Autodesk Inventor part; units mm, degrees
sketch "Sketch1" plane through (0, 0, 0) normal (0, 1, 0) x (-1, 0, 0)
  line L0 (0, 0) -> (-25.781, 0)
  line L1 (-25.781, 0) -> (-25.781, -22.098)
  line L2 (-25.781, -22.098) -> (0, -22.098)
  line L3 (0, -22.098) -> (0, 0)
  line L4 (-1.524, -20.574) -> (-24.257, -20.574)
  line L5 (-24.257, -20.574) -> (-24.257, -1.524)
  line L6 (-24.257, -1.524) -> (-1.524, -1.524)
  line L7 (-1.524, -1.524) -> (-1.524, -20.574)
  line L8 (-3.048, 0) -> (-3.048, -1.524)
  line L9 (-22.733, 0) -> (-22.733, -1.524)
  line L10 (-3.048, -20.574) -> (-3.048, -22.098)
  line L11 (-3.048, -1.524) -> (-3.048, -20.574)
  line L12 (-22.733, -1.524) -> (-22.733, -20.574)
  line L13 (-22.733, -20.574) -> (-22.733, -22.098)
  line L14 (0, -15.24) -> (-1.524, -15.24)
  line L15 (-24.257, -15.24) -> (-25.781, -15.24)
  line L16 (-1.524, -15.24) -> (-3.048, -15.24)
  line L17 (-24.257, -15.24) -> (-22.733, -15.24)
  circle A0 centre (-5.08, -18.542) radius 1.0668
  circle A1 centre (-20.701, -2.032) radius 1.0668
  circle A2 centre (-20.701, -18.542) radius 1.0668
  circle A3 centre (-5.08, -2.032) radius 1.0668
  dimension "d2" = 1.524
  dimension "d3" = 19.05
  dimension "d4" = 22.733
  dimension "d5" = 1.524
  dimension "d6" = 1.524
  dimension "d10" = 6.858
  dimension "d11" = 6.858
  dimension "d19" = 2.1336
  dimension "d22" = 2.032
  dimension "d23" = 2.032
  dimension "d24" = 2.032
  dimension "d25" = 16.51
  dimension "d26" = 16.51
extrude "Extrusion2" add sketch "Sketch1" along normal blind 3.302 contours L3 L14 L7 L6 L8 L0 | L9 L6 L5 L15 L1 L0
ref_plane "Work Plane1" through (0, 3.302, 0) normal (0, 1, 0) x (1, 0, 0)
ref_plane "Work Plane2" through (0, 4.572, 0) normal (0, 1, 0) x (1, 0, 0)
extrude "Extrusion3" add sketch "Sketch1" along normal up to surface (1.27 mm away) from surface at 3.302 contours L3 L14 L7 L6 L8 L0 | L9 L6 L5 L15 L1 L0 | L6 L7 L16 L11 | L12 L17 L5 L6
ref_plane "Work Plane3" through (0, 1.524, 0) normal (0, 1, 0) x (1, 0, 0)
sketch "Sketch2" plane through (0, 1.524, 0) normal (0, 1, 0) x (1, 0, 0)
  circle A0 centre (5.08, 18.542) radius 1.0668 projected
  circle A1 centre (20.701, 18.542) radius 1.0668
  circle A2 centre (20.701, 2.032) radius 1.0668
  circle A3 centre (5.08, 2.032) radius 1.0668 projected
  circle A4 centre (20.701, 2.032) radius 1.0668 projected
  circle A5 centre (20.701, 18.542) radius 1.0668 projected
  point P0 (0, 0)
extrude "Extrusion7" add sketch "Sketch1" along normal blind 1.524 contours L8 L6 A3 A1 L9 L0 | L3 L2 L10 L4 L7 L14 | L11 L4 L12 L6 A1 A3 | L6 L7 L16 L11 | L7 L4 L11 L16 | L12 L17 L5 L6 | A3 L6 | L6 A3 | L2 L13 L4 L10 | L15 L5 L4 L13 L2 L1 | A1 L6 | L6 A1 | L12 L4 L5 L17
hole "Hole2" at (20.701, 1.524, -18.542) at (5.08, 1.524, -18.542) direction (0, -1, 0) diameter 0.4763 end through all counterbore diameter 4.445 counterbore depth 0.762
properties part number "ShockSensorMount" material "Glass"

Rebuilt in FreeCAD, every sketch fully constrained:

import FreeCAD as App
import Part
import Sketcher
Q = App.Units.Quantity

doc = App.newDocument("Part")
body = doc.addObject("PartDesign::Body", "Body")
body.AllowCompound = True

# Sketch on XZ plane
sketch1 = body.newObject("Sketcher::SketchObject", "Sketch")
sketch1.AttachmentSupport = (doc.getObject("XZ_Plane"), [""])
sketch1.MapMode = "FlatFace"
sketch1.addGeometry([
    Part.LineSegment(App.Vector(0, -15.2, 0), App.Vector(0, 0, 0)),  # 0
    Part.LineSegment(App.Vector(0, 0, 0), App.Vector(3, 0, 0)),  # 1
    Part.LineSegment(App.Vector(3, 0, 0), App.Vector(3, -1.5, 0)),  # 2
    Part.LineSegment(App.Vector(3, -1.5, 0), App.Vector(1.5, -1.5, 0)),  # 3
    Part.LineSegment(App.Vector(1.5, -1.5, 0), App.Vector(1.5, -15.2, 0)),  # 4
    Part.LineSegment(App.Vector(1.5, -15.2, 0), App.Vector(0, -15.2, 0)),  # 5
    Part.LineSegment(App.Vector(22.7, -1.5, 0), App.Vector(22.7, 0, 0)),  # 6
    Part.LineSegment(App.Vector(22.7, 0, 0), App.Vector(25.8, 0, 0)),  # 7
    Part.LineSegment(App.Vector(25.8, 0, 0), App.Vector(25.8, -15.2, 0)),  # 8
    Part.LineSegment(App.Vector(25.8, -15.2, 0), App.Vector(24.3, -15.2, 0)),  # 9
    Part.LineSegment(App.Vector(24.3, -15.2, 0), App.Vector(24.3, -1.5, 0)),  # 10
    Part.LineSegment(App.Vector(24.3, -1.5, 0), App.Vector(22.7, -1.5, 0)),  # 11
], False)
sketch1.addConstraint([
    Sketcher.Constraint("Coincident", 0, 2, 1, 1),
    Sketcher.Constraint("Coincident", 1, 2, 2, 1),
    Sketcher.Constraint("Coincident", 2, 2, 3, 1),
    Sketcher.Constraint("Coincident", 3, 2, 4, 1),
    Sketcher.Constraint("Coincident", 4, 2, 5, 1),
    Sketcher.Constraint("Coincident", 5, 2, 0, 1),
    Sketcher.Constraint("Coincident", 6, 2, 7, 1),
    Sketcher.Constraint("Coincident", 7, 2, 8, 1),
    Sketcher.Constraint("Coincident", 8, 2, 9, 1),
    Sketcher.Constraint("Coincident", 9, 2, 10, 1),
    Sketcher.Constraint("Coincident", 10, 2, 11, 1),
    Sketcher.Constraint("Coincident", 11, 2, 6, 1),
    Sketcher.Constraint("Vertical", 0),
    Sketcher.Constraint("Horizontal", 1),
    Sketcher.Constraint("Vertical", 2),
    Sketcher.Constraint("Horizontal", 3),
    Sketcher.Constraint("Vertical", 4),
    Sketcher.Constraint("Horizontal", 5),
    Sketcher.Constraint("Vertical", 6),
    Sketcher.Constraint("Horizontal", 7),
    Sketcher.Constraint("Vertical", 8),
    Sketcher.Constraint("Horizontal", 9),
    Sketcher.Constraint("Vertical", 10),
    Sketcher.Constraint("Horizontal", 11),
    Sketcher.Constraint("Coincident", 0, 2, -1, 1),
    Sketcher.Constraint("PointOnObject", 6, 2, -1),
    Sketcher.Constraint("Horizontal", 5, 2, 8, 2),
    Sketcher.Constraint("Horizontal", 3, 2, 10, 2),
    Sketcher.Constraint("Equal", 3, 5),
    Sketcher.Constraint("Equal", 1, 7),
    Sketcher.Constraint("Equal", 5, 9),
    Sketcher.Constraint("Equal", 11, 2),
    Sketcher.Constraint("DistanceX", 3, 2, 3, 1, Q("0.06 in")),
    Sketcher.Constraint("DistanceY", 0, 1, 0, 2, Q("0.6 in")),
    Sketcher.Constraint("DistanceX", -1, 1, 6, 2, Q("0.895 in")),
])
pad1 = body.newObject("PartDesign::Pad", "Pad")
pad1.Profile = sketch1
pad1.Length = Q("0.13 in")
pad1.Reversed = True

# Sketch on XZ plane
sketch2 = body.newObject("Sketcher::SketchObject", "Sketch001")
sketch2.AttachmentSupport = (doc.getObject("XZ_Plane"), [""])
sketch2.MapMode = "FlatFace"
sketch2.AttachmentOffset = App.Placement(App.Vector(0, 0, -0.13 * 25.4), App.Rotation())
sketch2.addGeometry([
    Part.LineSegment(App.Vector(0, -15.2, 0), App.Vector(0, 0, 0)),  # 0
    Part.LineSegment(App.Vector(0, 0, 0), App.Vector(3, 0, 0)),  # 1
    Part.LineSegment(App.Vector(3, 0, 0), App.Vector(3, -15.2, 0)),  # 2
    Part.LineSegment(App.Vector(3, -15.2, 0), App.Vector(0, -15.2, 0)),  # 3
    Part.LineSegment(App.Vector(22.7, 0, 0), App.Vector(25.8, 0, 0)),  # 4
    Part.LineSegment(App.Vector(25.8, 0, 0), App.Vector(25.8, -15.2, 0)),  # 5
    Part.LineSegment(App.Vector(25.8, -15.2, 0), App.Vector(22.7, -15.2, 0)),  # 6
    Part.LineSegment(App.Vector(22.7, -15.2, 0), App.Vector(22.7, 0, 0)),  # 7
], False)
sketch2.addConstraint([
    Sketcher.Constraint("Coincident", 0, 2, 1, 1),
    Sketcher.Constraint("Coincident", 1, 2, 2, 1),
    Sketcher.Constraint("Coincident", 2, 2, 3, 1),
    Sketcher.Constraint("Coincident", 3, 2, 0, 1),
    Sketcher.Constraint("Coincident", 4, 2, 5, 1),
    Sketcher.Constraint("Coincident", 5, 2, 6, 1),
    Sketcher.Constraint("Coincident", 6, 2, 7, 1),
    Sketcher.Constraint("Coincident", 7, 2, 4, 1),
    Sketcher.Constraint("Vertical", 0),
    Sketcher.Constraint("Horizontal", 1),
    Sketcher.Constraint("Vertical", 2),
    Sketcher.Constraint("Horizontal", 3),
    Sketcher.Constraint("Horizontal", 4),
    Sketcher.Constraint("Vertical", 5),
    Sketcher.Constraint("Horizontal", 6),
    Sketcher.Constraint("Vertical", 7),
    Sketcher.Constraint("Coincident", 0, 2, -1, 1),
    Sketcher.Constraint("PointOnObject", 4, 2, -1),
    Sketcher.Constraint("Horizontal", 3, 2, 5, 2),
    Sketcher.Constraint("Equal", 3, 4),
    Sketcher.Constraint("DistanceY", 0, 1, 0, 2, Q("0.6 in")),
    Sketcher.Constraint("DistanceX", -1, 1, 6, 2, Q("0.895 in")),
    Sketcher.Constraint("DistanceX", 1, 1, 1, 2, Q("0.12 in")),
])
pad2 = body.newObject("PartDesign::Pad", "Pad001")
pad2.Profile = sketch2
pad2.Length = Q("0.05 in")
pad2.Reversed = True

# Sketch on XZ plane
sketch3 = body.newObject("Sketcher::SketchObject", "Sketch002")
sketch3.AttachmentSupport = (doc.getObject("XZ_Plane"), [""])
sketch3.MapMode = "FlatFace"
sketch3.addGeometry([
    Part.LineSegment(App.Vector(3, -1.5, 0), App.Vector(3, 0, 0)),  # 0
    Part.LineSegment(App.Vector(3, 0, 0), App.Vector(22.7, 0, 0)),  # 1
    Part.LineSegment(App.Vector(22.7, 0, 0), App.Vector(22.7, -1.5, 0)),  # 2
    Part.LineSegment(App.Vector(22.7, -1.5, 0), App.Vector(24.3, -1.5, 0)),  # 3
    Part.LineSegment(App.Vector(24.3, -1.5, 0), App.Vector(24.3, -15.2, 0)),  # 4
    Part.LineSegment(App.Vector(24.3, -15.2, 0), App.Vector(25.8, -15.2, 0)),  # 5
    Part.LineSegment(App.Vector(25.8, -15.2, 0), App.Vector(25.8, -22.1, 0)),  # 6
    Part.LineSegment(App.Vector(25.8, -22.1, 0), App.Vector(0, -22.1, 0)),  # 7
    Part.LineSegment(App.Vector(0, -22.1, 0), App.Vector(0, -15.2, 0)),  # 8
    Part.LineSegment(App.Vector(0, -15.2, 0), App.Vector(1.5, -15.2, 0)),  # 9
    Part.LineSegment(App.Vector(1.5, -15.2, 0), App.Vector(1.5, -1.5, 0)),  # 10
    Part.LineSegment(App.Vector(1.5, -1.5, 0), App.Vector(3, -1.5, 0)),  # 11
    Part.Circle(App.Vector(5.1, -18.5, 0), App.Vector(0, 0, 1), 1.1),  # 12
    Part.Circle(App.Vector(20.7, -18.5, 0), App.Vector(0, 0, 1), 1.1),  # 13
], False)
sketch3.addConstraint([
    Sketcher.Constraint("Coincident", 0, 2, 1, 1),
    Sketcher.Constraint("Coincident", 1, 2, 2, 1),
    Sketcher.Constraint("Coincident", 2, 2, 3, 1),
    Sketcher.Constraint("Coincident", 3, 2, 4, 1),
    Sketcher.Constraint("Coincident", 4, 2, 5, 1),
    Sketcher.Constraint("Coincident", 5, 2, 6, 1),
    Sketcher.Constraint("Coincident", 6, 2, 7, 1),
    Sketcher.Constraint("Coincident", 7, 2, 8, 1),
    Sketcher.Constraint("Coincident", 8, 2, 9, 1),
    Sketcher.Constraint("Coincident", 9, 2, 10, 1),
    Sketcher.Constraint("Coincident", 10, 2, 11, 1),
    Sketcher.Constraint("Coincident", 11, 2, 0, 1),
    Sketcher.Constraint("Vertical", 0),
    Sketcher.Constraint("Horizontal", 1),
    Sketcher.Constraint("Vertical", 2),
    Sketcher.Constraint("Horizontal", 3),
    Sketcher.Constraint("Vertical", 4),
    Sketcher.Constraint("Horizontal", 5),
    Sketcher.Constraint("Vertical", 6),
    Sketcher.Constraint("Horizontal", 7),
    Sketcher.Constraint("Vertical", 8),
    Sketcher.Constraint("Horizontal", 9),
    Sketcher.Constraint("Vertical", 10),
    Sketcher.Constraint("Horizontal", 11),
    Sketcher.Constraint("Equal", 12, 13),
    Sketcher.Constraint("PointOnObject", 0, 2, -1),
    Sketcher.Constraint("PointOnObject", 7, 2, -2),
    Sketcher.Constraint("Horizontal", 12, 3, 13, 3),
    Sketcher.Constraint("Horizontal", 5, 2, 8, 2),
    Sketcher.Constraint("Horizontal", 3, 2, 10, 2),
    Sketcher.Constraint("Equal", 3, 5),
    Sketcher.Constraint("Equal", 5, 9),
    Sketcher.Constraint("Equal", 9, 11),
    Sketcher.Constraint("Equal", 11, 0),
    Sketcher.Constraint("Diameter", 12, Q("0.084 in")),
    Sketcher.Constraint("DistanceX", 3, 1, 3, 2, Q("0.06 in")),
    Sketcher.Constraint("DistanceY", 6, 2, 6, 1, Q("0.27 in")),
    Sketcher.Constraint("DistanceX", 0, 2, 12, 3, Q("0.08 in")),
    Sketcher.Constraint("DistanceX", 13, 3, 1, 2, Q("0.08 in")),
    Sketcher.Constraint("DistanceX", -1, 1, 1, 2, Q("0.895 in")),
    Sketcher.Constraint("DistanceY", 4, 2, 4, 1, Q("0.54 in")),
    Sketcher.Constraint("DistanceY", 12, 3, -1, 1, Q("0.73 in")),
])
pad3 = body.newObject("PartDesign::Pad", "Pad002")
pad3.Profile = sketch3
pad3.Length = Q("0.06 in")
pad3.Reversed = True

# Sketch on XZ plane
sketch4 = body.newObject("Sketcher::SketchObject", "Sketch003")
sketch4.AttachmentSupport = (doc.getObject("XZ_Plane"), [""])
sketch4.MapMode = "FlatFace"
sketch4.AttachmentOffset = App.Placement(App.Vector(0, 0, -0.06 * 25.4), App.Rotation())
sketch4.addGeometry([
    Part.Circle(App.Vector(20.7, -18.54, 0), App.Vector(0, 0, 1), 0.24),
    Part.Circle(App.Vector(5.08, -18.54, 0), App.Vector(0, 0, 1), 0.24),
], False)
sketch4.addConstraint([
    Sketcher.Constraint("Equal", 0, 1),
    Sketcher.Constraint("Horizontal", 0, 3, 1, 3),
    Sketcher.Constraint("DistanceX", -1, 1, 1, 3, Q("0.2 in")),
    Sketcher.Constraint("Diameter", 0, Q("0.4763 mm")),
    Sketcher.Constraint("DistanceY", 0, 3, -1, 1, Q("0.73 in")),
    Sketcher.Constraint("DistanceX", -1, 1, 0, 3, Q("0.815 in")),
])
doc.recompute()
hole = body.newObject("PartDesign::Hole", "Hole")
hole.Profile = sketch4
hole.ThreadType = "None"
hole.Diameter = 0.4763
hole.DepthType = "ThroughAll"
hole.HoleCutType = "Counterbore"
hole.HoleCutDiameter = Q("0.175 in")
hole.HoleCutDepth = Q("0.03 in")
hole.Reversed = True

doc.recompute()
